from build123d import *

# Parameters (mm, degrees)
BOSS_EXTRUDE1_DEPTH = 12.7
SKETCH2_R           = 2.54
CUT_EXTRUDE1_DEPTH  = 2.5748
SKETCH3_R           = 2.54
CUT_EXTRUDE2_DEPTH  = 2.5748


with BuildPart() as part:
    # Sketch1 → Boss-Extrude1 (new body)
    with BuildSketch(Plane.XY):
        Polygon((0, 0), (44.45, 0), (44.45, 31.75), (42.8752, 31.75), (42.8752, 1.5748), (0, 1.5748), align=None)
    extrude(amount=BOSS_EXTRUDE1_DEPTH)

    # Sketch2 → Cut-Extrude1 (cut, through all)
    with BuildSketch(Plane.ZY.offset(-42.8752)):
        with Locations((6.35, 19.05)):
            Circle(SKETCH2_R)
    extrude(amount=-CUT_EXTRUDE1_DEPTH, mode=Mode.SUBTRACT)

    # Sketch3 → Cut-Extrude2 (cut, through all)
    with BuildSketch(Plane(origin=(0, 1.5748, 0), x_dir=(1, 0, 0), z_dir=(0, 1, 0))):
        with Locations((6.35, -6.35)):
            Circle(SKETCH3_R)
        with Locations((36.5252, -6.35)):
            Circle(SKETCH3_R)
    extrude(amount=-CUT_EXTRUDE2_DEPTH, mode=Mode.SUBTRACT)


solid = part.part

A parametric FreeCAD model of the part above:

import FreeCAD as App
import Part
import Sketcher
from FreeCAD import Vector
Q = App.Units.Quantity


def add_polygon(sketch, points):
    """Adds a closed chain of lines whose ends are joined by coincident constraints."""
    first, n = sketch.GeometryCount, len(points)
    for a, b in zip(points, points[1:] + points[:1]):
        sketch.addGeometry(Part.LineSegment(App.Vector(*a, 0), App.Vector(*b, 0)), False)
    for i in range(n):
        sketch.addConstraint(Sketcher.Constraint("Coincident", first + i, 2, first + (i + 1) % n, 1))

doc = App.newDocument("Part")
body = doc.addObject("PartDesign::Body", "Body")

# Sketch on XY plane
sketch1 = body.newObject("Sketcher::SketchObject", "Sketch")
sketch1.AttachmentSupport = (doc.getObject("XY_Plane"), [""])
sketch1.MapMode = "FlatFace"
add_polygon(sketch1, [(0, 0), (44.5, 0), (44.5, 31.8), (42.9, 31.8), (42.9, 1.6), (0, 1.6)])  # lines 0-5
sketch1.addConstraint([
    Sketcher.Constraint("Horizontal", 0),
    Sketcher.Constraint("Vertical", 1),
    Sketcher.Constraint("Horizontal", 2),
    Sketcher.Constraint("Vertical", 3),
    Sketcher.Constraint("Horizontal", 4),
    Sketcher.Constraint("Vertical", 5),
    Sketcher.Constraint("Coincident", 5, 2, -1, 1),
    Sketcher.Constraint("Equal", 2, 5),
    Sketcher.Constraint("DistanceX", 0, 1, 0, 2, Q("1.75 in")),
    Sketcher.Constraint("DistanceY", 1, 1, 1, 2, Q("1.25 in")),
    Sketcher.Constraint("DistanceX", 2, 2, 2, 1, Q("0.062 in")),
])
pad1 = body.newObject("PartDesign::Pad", "Pad")
pad1.Profile = sketch1
pad1.Length = Q("0.5 in")

# Sketch on YZ plane
sketch2 = body.newObject("Sketcher::SketchObject", "Sketch001")
sketch2.AttachmentSupport = (doc.getObject("YZ_Plane"), [""])
sketch2.MapMode = "FlatFace"
sketch2.AttachmentOffset = App.Placement(Vector(0, 0, 1.688 * 25.4), App.Rotation())
sketch2.addGeometry(Part.Circle(Vector(19.1, 6.3, 0), Vector(0, 0, 1), 2.5), False)
sketch2.addConstraint([
    Sketcher.Constraint("Diameter", 0, Q("0.2 in")),
    Sketcher.Constraint("DistanceX", -1, 1, 0, 3, Q("0.75 in")),
    Sketcher.Constraint("DistanceY", -1, 1, 0, 3, Q("0.25 in")),
])
pocket1 = body.newObject("PartDesign::Pocket", "Pocket")
pocket1.Profile = sketch2
pocket1.Type = "ThroughAll"
pocket1.Reversed = True

# Sketch on XZ plane
sketch3 = body.newObject("Sketcher::SketchObject", "Sketch002")
sketch3.AttachmentSupport = (doc.getObject("XZ_Plane"), [""])
sketch3.MapMode = "FlatFace"
sketch3.AttachmentOffset = App.Placement(Vector(0, 0, -0.062 * 25.4), App.Rotation())
sketch3.addGeometry([
    Part.Circle(Vector(6.3, 6.3, 0), Vector(0, 0, 1), 2.5),
    Part.Circle(Vector(36.5, 6.3, 0), Vector(0, 0, 1), 2.5),
], False)
sketch3.addConstraint([
    Sketcher.Constraint("Equal", 0, 1),
    Sketcher.Constraint("Horizontal", 0, 3, 1, 3),
    Sketcher.Constraint("Diameter", 0, Q("0.2 in")),
    Sketcher.Constraint("DistanceX", -1, 1, 0, 3, Q("0.25 in")),
    Sketcher.Constraint("DistanceY", -1, 1, 0, 3, Q("0.25 in")),
    Sketcher.Constraint("DistanceX", -1, 1, 1, 3, Q("1.438 in")),
])
pocket2 = body.newObject("PartDesign::Pocket", "Pocket001")
pocket2.Profile = sketch3
pocket2.Type = "ThroughAll"
pocket2.Reversed = True

doc.recompute()
